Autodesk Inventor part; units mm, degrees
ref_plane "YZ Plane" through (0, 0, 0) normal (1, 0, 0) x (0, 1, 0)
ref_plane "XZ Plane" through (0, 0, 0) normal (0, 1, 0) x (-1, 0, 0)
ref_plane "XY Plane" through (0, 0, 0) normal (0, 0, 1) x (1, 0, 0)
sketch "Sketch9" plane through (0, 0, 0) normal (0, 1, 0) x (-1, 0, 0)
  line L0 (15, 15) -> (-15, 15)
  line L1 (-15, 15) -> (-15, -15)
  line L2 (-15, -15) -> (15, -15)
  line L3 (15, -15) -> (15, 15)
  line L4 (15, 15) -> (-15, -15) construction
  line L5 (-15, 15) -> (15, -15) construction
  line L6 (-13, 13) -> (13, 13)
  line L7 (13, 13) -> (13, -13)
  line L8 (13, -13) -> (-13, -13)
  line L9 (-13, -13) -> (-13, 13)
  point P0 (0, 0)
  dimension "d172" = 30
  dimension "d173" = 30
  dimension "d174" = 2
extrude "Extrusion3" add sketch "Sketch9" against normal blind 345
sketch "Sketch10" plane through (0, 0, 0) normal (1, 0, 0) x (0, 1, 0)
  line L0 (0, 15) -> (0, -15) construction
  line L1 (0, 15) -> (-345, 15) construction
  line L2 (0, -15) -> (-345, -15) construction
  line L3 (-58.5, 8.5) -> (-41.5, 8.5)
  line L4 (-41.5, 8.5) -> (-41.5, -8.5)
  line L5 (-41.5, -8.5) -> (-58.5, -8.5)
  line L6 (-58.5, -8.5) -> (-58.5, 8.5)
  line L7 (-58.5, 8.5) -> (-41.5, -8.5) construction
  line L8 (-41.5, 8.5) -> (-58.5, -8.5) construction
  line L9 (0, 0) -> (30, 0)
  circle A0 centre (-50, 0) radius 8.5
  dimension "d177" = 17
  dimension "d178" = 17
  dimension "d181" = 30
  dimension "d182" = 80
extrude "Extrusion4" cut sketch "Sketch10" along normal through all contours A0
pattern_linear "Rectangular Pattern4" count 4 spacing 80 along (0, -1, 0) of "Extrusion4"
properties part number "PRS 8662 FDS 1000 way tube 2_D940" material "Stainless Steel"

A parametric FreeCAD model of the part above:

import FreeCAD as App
import Part
import Sketcher

V = App.Vector
Q = App.Units.Quantity


def add_polygon(sketch, points):
    """Adds a closed chain of lines whose ends are joined by coincident constraints."""
    first, n = sketch.GeometryCount, len(points)
    for a, b in zip(points, points[1:] + points[:1]):
        sketch.addGeometry(Part.LineSegment(App.Vector(*a, 0), App.Vector(*b, 0)), False)
    for i in range(n):
        sketch.addConstraint(Sketcher.Constraint("Coincident", first + i, 2, first + (i + 1) % n, 1))

doc = App.newDocument("Part")
body = doc.addObject("PartDesign::Body", "Body")

sketch1 = body.newObject("Sketcher::SketchObject", "Sketch")
sketch1.AttachmentSupport = (doc.getObject("XZ_Plane"), [""])
sketch1.MapMode = "FlatFace"
add_polygon(sketch1, [(-15, -15), (-15, 15), (15, 15), (15, -15)])
add_polygon(sketch1, [(13, -13), (13, 13), (-13, 13), (-13, -13)])
sketch1.addConstraint([
    Sketcher.Constraint("Vertical", 0),
    Sketcher.Constraint("Horizontal", 1),
    Sketcher.Constraint("Vertical", 2),
    Sketcher.Constraint("Horizontal", 3),
    Sketcher.Constraint("Vertical", 4),
    Sketcher.Constraint("Horizontal", 5),
    Sketcher.Constraint("Vertical", 6),
    Sketcher.Constraint("Horizontal", 7),
    Sketcher.Constraint("Symmetric", 0, 2, 2, 2, -1, 1),
    Sketcher.Constraint("Symmetric", 4, 2, 6, 2, -1, 1),
    Sketcher.Constraint("Equal", 3, 0),
    Sketcher.Constraint("Equal", 7, 4),
    Sketcher.Constraint("DistanceX", 1, 1, 1, 2, Q("30 mm")),
    Sketcher.Constraint("DistanceX", 4, 2, 1, 2, Q("2 mm")),
])
pad1 = body.newObject("PartDesign::Pad", "Pad")
pad1.Profile = sketch1
pad1.Length = 345

sketch2 = body.newObject("Sketcher::SketchObject", "Sketch001")
sketch2.AttachmentSupport = (doc.getObject("YZ_Plane"), [""])
sketch2.MapMode = "FlatFace"
sketch2.addGeometry(Part.Circle(V(-50, 0, 0), V(0, 0, 1), 8.5), False)
sketch2.addConstraint([
    Sketcher.Constraint("PointOnObject", 0, 3, -1),
    Sketcher.Constraint("Diameter", 0, Q("17 mm")),
    Sketcher.Constraint("DistanceX", 0, 3, -1, 1, Q("50 mm")),
])
pocket1 = body.newObject("PartDesign::Pocket", "Pocket")
pocket1.Profile = sketch2
pocket1.Type = "ThroughAll"
pocket1.Reversed = True
doc.recompute()

linearpattern = body.newObject("PartDesign::LinearPattern", "LinearPattern")
linearpattern.Originals = [pocket1]
linearpattern.Direction = (doc.getObject("Y_Axis"), [""])
linearpattern.Mode = "offset"
linearpattern.Offset = 80
linearpattern.Occurrences = 4
linearpattern.Reversed = True
body.Tip = linearpattern

doc.recompute()
